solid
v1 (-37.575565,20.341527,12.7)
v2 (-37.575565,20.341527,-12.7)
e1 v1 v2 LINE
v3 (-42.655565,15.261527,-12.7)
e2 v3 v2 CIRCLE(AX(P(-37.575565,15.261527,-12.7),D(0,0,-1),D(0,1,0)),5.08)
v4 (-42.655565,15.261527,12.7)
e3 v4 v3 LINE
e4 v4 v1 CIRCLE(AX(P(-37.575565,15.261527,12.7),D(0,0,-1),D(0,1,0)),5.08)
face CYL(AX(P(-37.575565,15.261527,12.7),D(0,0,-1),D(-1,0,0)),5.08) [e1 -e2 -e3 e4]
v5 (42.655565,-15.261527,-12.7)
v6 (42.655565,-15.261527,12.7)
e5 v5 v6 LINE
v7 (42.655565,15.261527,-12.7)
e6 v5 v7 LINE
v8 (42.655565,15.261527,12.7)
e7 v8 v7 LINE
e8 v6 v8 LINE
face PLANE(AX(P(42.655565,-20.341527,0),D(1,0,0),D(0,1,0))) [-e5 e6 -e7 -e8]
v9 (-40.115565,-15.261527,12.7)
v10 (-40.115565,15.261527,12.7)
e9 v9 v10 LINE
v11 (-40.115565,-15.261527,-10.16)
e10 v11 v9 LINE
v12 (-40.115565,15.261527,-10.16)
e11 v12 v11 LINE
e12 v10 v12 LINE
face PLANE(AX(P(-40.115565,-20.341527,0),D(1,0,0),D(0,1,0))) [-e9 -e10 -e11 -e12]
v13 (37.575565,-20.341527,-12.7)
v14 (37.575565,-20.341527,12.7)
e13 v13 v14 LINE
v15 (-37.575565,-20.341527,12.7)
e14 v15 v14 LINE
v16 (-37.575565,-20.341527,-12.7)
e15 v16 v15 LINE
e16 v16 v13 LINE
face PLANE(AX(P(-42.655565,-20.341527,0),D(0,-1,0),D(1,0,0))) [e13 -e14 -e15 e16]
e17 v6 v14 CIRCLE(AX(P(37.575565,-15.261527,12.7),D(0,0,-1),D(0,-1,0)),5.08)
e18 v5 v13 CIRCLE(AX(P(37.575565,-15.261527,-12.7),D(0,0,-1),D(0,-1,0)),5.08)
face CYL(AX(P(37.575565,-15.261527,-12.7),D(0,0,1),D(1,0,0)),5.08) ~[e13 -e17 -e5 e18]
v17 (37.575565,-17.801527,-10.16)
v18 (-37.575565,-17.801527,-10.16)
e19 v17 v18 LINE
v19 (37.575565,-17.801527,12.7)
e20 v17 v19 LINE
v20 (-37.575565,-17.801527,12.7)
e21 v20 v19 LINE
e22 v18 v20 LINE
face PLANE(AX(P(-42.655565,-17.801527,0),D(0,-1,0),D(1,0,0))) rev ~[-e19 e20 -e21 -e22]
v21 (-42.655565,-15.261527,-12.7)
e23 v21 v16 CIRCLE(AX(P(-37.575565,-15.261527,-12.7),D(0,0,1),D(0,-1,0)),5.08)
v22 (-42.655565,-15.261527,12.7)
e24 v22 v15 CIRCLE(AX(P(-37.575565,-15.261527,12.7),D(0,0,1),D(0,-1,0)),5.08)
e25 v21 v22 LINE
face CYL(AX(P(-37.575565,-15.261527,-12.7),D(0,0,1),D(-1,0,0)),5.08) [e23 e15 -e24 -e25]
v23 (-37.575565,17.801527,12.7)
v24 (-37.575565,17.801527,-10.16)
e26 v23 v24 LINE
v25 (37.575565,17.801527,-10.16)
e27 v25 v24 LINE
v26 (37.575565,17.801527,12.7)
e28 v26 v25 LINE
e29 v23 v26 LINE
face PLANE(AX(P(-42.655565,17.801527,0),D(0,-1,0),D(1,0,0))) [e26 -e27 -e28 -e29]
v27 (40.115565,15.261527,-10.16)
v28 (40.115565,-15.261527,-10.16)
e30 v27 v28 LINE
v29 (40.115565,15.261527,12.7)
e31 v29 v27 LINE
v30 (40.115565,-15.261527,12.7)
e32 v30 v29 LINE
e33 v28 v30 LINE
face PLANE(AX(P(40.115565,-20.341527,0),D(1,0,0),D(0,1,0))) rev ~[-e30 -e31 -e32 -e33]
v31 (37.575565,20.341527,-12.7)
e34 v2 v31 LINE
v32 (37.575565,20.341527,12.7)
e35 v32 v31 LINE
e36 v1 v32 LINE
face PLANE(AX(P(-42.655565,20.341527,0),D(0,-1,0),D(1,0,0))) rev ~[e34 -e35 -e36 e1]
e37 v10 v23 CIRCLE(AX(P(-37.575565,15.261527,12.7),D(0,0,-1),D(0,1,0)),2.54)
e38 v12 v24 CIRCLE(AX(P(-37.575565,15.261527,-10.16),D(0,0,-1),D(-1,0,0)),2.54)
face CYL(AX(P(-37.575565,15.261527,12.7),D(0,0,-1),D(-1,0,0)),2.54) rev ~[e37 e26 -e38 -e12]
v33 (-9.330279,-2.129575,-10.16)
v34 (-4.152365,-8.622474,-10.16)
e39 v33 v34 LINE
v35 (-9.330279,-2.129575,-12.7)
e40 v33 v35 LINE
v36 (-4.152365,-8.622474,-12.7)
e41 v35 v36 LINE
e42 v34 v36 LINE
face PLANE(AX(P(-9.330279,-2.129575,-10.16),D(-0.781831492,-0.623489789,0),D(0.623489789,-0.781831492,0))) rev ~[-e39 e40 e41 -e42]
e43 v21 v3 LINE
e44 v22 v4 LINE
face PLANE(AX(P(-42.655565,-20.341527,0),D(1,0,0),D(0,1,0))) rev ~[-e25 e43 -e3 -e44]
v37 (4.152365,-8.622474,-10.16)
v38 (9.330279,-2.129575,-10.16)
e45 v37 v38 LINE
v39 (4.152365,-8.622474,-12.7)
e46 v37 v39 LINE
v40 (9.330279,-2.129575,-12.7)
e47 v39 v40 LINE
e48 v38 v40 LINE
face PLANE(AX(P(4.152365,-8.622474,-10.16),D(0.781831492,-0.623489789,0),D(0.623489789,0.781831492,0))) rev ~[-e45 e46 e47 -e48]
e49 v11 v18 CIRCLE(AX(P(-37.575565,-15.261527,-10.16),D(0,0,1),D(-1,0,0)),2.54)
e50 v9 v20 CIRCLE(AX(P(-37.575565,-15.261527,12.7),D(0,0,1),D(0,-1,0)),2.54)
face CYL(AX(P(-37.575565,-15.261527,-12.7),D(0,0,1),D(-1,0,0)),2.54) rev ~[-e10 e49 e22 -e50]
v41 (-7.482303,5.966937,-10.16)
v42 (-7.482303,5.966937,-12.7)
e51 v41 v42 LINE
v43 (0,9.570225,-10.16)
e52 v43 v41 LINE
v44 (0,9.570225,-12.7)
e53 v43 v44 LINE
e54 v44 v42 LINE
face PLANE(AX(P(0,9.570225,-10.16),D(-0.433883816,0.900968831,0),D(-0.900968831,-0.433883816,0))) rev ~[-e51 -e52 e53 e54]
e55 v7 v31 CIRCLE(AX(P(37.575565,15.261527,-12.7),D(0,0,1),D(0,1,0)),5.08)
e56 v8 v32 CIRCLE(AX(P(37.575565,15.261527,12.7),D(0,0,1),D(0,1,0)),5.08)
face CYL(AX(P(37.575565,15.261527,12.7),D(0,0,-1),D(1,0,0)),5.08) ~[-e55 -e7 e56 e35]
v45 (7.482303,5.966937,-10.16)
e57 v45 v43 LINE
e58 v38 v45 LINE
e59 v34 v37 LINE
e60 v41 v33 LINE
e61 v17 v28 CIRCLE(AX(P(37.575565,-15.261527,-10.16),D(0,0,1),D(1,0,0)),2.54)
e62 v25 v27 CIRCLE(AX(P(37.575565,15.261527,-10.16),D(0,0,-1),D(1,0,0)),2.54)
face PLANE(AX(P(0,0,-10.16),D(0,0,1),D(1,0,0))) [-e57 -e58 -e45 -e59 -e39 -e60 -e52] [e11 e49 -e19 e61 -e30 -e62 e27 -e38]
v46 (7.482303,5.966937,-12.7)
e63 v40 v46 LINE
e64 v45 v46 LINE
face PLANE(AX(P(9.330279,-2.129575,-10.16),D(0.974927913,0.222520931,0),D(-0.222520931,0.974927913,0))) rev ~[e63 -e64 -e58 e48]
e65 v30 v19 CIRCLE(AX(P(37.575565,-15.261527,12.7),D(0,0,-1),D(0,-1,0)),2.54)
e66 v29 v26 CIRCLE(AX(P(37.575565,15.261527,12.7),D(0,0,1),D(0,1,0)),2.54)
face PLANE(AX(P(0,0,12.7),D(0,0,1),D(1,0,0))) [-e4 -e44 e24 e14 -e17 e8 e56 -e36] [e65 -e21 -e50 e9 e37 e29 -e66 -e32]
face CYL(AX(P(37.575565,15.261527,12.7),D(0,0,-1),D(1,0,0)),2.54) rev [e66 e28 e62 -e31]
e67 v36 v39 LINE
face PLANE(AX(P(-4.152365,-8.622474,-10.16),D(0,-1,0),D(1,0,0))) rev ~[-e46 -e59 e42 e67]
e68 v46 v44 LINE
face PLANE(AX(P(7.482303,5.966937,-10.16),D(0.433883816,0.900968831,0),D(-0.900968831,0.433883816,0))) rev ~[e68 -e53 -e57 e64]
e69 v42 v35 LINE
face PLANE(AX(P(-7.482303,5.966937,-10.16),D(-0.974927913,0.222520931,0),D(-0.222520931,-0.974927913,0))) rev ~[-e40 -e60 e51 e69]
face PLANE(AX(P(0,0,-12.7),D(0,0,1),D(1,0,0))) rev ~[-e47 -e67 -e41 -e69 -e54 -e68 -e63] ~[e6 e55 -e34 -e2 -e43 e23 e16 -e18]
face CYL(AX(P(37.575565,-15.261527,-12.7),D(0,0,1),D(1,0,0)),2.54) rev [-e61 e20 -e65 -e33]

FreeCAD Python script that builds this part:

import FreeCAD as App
import Part
import Sketcher

V = App.Vector
Q = App.Units.Quantity


def edges_at(feature, points):
    """Names of the edges that pass closest to the given points."""
    edges = feature.Shape.Edges
    near = lambda p: min(range(len(edges)), key=lambda i: edges[i].distToShape(Part.Vertex(*p))[0])
    return sorted({f"Edge{near(p) + 1}" for p in points})


def faces_at(feature, points):
    """Names of the faces that lie closest to the given points."""
    faces = feature.Shape.Faces
    near = lambda p: min(range(len(faces)), key=lambda i: faces[i].distToShape(Part.Vertex(*p))[0])
    return sorted({f"Face{near(p) + 1}" for p in points})

doc = App.newDocument("Part")
body = doc.addObject("PartDesign::Body", "Body")

# Sketch on XY plane
sketch1 = doc.addObject("Sketcher::SketchObject", "Sketch")
body.addObject(sketch1)
sketch1.AttachmentSupport = (doc.XY_Plane, [""])
sketch1.MapMode = "FlatFace"
sketch1.addGeometry([
    Part.LineSegment(V(-42.655565, 20.341527, 0), V(-42.655565, -20.341527, 0)),
    Part.LineSegment(V(-42.655565, -20.341527, 0), V(42.655565, -20.341527, 0)),
    Part.LineSegment(V(42.655565, -20.341527, 0), V(42.655565, 20.341527, 0)),
    Part.LineSegment(V(42.655565, 20.341527, 0), V(-42.655565, 20.341527, 0)),
], False)
sketch1.addConstraint([
    Sketcher.Constraint("Coincident", 0, 2, 1, 1),
    Sketcher.Constraint("Coincident", 1, 2, 2, 1),
    Sketcher.Constraint("Coincident", 2, 2, 3, 1),
    Sketcher.Constraint("Coincident", 3, 2, 0, 1),
    Sketcher.Constraint("Vertical", 0),
    Sketcher.Constraint("Horizontal", 1),
    Sketcher.Constraint("Vertical", 2),
    Sketcher.Constraint("Horizontal", 3),
    Sketcher.Constraint("Symmetric", 0, 2, 2, 2, -1, 1),
    Sketcher.Constraint("DistanceX", 1, 1, 1, 2, Q("85.31113 mm")),
    Sketcher.Constraint("DistanceY", 0, 2, 0, 1, Q("40.683054 mm")),
])
pad1 = doc.addObject("PartDesign::Pad", "Pad")
body.addObject(pad1)
pad1.Profile = sketch1
pad1.Length = Q("1 in")
pad1.Midplane = True
doc.recompute()

fillet = doc.addObject("PartDesign::Fillet", "Fillet")
body.addObject(fillet)
fillet.Base = (pad1, edges_at(pad1, [
    (42.656, -20.342, 0),
    (42.656, 20.342, 0),
    (-42.656, -20.342, 0),
    (-42.656, 20.342, 0),
]))
fillet.Radius = Q("0.2 in")
doc.recompute()

thickness = doc.addObject("PartDesign::Thickness", "Thickness")
body.addObject(thickness)
thickness.Base = (fillet, faces_at(fillet, [(0, 0, 12.7)]))
thickness.Value = Q("0.1 in")
thickness.Reversed = True
thickness.Join = "Arc"

# Sketch on XY plane
sketch2 = doc.addObject("Sketcher::SketchObject", "Sketch001")
body.addObject(sketch2)
sketch2.AttachmentSupport = (doc.XY_Plane, [""])
sketch2.MapMode = "FlatFace"
sketch2.AttachmentOffset = App.Placement(V(0, 0, -0.4 * 25.4), App.Rotation())
sketch2.addGeometry([
    Part.LineSegment(V(-7.482303, 5.966937, 0), V(-9.330279, -2.129575, 0)),  # 0
    Part.LineSegment(V(-9.330279, -2.129575, 0), V(-4.152365, -8.622474, 0)),  # 1
    Part.LineSegment(V(-4.152365, -8.622474, 0), V(4.152365, -8.622474, 0)),  # 2
    Part.LineSegment(V(4.152365, -8.622474, 0), V(9.330279, -2.129575, 0)),  # 3
    Part.LineSegment(V(9.330279, -2.129575, 0), V(7.482303, 5.966937, 0)),  # 4
    Part.LineSegment(V(7.482303, 5.966937, 0), V(0, 9.570225, 0)),  # 5
    Part.LineSegment(V(0, 9.570225, 0), V(-7.482303, 5.966937, 0)),  # 6
], False)
sketch2.addConstraint([
    Sketcher.Constraint("Coincident", 0, 2, 1, 1),
    Sketcher.Constraint("Coincident", 1, 2, 2, 1),
    Sketcher.Constraint("Coincident", 2, 2, 3, 1),
    Sketcher.Constraint("Coincident", 3, 2, 4, 1),
    Sketcher.Constraint("Coincident", 4, 2, 5, 1),
    Sketcher.Constraint("Coincident", 5, 2, 6, 1),
    Sketcher.Constraint("Coincident", 6, 2, 0, 1),
    Sketcher.Constraint("Horizontal", 2),
    Sketcher.Constraint("Symmetric", 0, 2, 3, 2, -2),
    Sketcher.Constraint("Symmetric", 4, 2, 6, 2, -2),
    Sketcher.Constraint("PointOnObject", 5, 2, -2),
    Sketcher.Constraint("Equal", 0, 1),
    Sketcher.Constraint("Equal", 1, 3),
    Sketcher.Constraint("Equal", 4, 5),
    Sketcher.Constraint("DistanceX", 2, 2, 4, 2, Q("0.1310999 in")),
    Sketcher.Constraint("DistanceX", 2, 1, 2, 2, Q("8.30473 mm")),
    Sketcher.Constraint("DistanceY", 1, 2, 0, 2, Q("6.492899 mm")),
    Sketcher.Constraint("DistanceY", 0, 2, 5, 2, Q("11.6998 mm")),
    Sketcher.Constraint("DistanceY", 0, 2, -1, 1, Q("2.129575 mm")),
])
pocket1 = doc.addObject("PartDesign::Pocket", "Pocket")
body.addObject(pocket1)
pocket1.Profile = sketch2
pocket1.Type = "ThroughAll"

doc.recompute()
